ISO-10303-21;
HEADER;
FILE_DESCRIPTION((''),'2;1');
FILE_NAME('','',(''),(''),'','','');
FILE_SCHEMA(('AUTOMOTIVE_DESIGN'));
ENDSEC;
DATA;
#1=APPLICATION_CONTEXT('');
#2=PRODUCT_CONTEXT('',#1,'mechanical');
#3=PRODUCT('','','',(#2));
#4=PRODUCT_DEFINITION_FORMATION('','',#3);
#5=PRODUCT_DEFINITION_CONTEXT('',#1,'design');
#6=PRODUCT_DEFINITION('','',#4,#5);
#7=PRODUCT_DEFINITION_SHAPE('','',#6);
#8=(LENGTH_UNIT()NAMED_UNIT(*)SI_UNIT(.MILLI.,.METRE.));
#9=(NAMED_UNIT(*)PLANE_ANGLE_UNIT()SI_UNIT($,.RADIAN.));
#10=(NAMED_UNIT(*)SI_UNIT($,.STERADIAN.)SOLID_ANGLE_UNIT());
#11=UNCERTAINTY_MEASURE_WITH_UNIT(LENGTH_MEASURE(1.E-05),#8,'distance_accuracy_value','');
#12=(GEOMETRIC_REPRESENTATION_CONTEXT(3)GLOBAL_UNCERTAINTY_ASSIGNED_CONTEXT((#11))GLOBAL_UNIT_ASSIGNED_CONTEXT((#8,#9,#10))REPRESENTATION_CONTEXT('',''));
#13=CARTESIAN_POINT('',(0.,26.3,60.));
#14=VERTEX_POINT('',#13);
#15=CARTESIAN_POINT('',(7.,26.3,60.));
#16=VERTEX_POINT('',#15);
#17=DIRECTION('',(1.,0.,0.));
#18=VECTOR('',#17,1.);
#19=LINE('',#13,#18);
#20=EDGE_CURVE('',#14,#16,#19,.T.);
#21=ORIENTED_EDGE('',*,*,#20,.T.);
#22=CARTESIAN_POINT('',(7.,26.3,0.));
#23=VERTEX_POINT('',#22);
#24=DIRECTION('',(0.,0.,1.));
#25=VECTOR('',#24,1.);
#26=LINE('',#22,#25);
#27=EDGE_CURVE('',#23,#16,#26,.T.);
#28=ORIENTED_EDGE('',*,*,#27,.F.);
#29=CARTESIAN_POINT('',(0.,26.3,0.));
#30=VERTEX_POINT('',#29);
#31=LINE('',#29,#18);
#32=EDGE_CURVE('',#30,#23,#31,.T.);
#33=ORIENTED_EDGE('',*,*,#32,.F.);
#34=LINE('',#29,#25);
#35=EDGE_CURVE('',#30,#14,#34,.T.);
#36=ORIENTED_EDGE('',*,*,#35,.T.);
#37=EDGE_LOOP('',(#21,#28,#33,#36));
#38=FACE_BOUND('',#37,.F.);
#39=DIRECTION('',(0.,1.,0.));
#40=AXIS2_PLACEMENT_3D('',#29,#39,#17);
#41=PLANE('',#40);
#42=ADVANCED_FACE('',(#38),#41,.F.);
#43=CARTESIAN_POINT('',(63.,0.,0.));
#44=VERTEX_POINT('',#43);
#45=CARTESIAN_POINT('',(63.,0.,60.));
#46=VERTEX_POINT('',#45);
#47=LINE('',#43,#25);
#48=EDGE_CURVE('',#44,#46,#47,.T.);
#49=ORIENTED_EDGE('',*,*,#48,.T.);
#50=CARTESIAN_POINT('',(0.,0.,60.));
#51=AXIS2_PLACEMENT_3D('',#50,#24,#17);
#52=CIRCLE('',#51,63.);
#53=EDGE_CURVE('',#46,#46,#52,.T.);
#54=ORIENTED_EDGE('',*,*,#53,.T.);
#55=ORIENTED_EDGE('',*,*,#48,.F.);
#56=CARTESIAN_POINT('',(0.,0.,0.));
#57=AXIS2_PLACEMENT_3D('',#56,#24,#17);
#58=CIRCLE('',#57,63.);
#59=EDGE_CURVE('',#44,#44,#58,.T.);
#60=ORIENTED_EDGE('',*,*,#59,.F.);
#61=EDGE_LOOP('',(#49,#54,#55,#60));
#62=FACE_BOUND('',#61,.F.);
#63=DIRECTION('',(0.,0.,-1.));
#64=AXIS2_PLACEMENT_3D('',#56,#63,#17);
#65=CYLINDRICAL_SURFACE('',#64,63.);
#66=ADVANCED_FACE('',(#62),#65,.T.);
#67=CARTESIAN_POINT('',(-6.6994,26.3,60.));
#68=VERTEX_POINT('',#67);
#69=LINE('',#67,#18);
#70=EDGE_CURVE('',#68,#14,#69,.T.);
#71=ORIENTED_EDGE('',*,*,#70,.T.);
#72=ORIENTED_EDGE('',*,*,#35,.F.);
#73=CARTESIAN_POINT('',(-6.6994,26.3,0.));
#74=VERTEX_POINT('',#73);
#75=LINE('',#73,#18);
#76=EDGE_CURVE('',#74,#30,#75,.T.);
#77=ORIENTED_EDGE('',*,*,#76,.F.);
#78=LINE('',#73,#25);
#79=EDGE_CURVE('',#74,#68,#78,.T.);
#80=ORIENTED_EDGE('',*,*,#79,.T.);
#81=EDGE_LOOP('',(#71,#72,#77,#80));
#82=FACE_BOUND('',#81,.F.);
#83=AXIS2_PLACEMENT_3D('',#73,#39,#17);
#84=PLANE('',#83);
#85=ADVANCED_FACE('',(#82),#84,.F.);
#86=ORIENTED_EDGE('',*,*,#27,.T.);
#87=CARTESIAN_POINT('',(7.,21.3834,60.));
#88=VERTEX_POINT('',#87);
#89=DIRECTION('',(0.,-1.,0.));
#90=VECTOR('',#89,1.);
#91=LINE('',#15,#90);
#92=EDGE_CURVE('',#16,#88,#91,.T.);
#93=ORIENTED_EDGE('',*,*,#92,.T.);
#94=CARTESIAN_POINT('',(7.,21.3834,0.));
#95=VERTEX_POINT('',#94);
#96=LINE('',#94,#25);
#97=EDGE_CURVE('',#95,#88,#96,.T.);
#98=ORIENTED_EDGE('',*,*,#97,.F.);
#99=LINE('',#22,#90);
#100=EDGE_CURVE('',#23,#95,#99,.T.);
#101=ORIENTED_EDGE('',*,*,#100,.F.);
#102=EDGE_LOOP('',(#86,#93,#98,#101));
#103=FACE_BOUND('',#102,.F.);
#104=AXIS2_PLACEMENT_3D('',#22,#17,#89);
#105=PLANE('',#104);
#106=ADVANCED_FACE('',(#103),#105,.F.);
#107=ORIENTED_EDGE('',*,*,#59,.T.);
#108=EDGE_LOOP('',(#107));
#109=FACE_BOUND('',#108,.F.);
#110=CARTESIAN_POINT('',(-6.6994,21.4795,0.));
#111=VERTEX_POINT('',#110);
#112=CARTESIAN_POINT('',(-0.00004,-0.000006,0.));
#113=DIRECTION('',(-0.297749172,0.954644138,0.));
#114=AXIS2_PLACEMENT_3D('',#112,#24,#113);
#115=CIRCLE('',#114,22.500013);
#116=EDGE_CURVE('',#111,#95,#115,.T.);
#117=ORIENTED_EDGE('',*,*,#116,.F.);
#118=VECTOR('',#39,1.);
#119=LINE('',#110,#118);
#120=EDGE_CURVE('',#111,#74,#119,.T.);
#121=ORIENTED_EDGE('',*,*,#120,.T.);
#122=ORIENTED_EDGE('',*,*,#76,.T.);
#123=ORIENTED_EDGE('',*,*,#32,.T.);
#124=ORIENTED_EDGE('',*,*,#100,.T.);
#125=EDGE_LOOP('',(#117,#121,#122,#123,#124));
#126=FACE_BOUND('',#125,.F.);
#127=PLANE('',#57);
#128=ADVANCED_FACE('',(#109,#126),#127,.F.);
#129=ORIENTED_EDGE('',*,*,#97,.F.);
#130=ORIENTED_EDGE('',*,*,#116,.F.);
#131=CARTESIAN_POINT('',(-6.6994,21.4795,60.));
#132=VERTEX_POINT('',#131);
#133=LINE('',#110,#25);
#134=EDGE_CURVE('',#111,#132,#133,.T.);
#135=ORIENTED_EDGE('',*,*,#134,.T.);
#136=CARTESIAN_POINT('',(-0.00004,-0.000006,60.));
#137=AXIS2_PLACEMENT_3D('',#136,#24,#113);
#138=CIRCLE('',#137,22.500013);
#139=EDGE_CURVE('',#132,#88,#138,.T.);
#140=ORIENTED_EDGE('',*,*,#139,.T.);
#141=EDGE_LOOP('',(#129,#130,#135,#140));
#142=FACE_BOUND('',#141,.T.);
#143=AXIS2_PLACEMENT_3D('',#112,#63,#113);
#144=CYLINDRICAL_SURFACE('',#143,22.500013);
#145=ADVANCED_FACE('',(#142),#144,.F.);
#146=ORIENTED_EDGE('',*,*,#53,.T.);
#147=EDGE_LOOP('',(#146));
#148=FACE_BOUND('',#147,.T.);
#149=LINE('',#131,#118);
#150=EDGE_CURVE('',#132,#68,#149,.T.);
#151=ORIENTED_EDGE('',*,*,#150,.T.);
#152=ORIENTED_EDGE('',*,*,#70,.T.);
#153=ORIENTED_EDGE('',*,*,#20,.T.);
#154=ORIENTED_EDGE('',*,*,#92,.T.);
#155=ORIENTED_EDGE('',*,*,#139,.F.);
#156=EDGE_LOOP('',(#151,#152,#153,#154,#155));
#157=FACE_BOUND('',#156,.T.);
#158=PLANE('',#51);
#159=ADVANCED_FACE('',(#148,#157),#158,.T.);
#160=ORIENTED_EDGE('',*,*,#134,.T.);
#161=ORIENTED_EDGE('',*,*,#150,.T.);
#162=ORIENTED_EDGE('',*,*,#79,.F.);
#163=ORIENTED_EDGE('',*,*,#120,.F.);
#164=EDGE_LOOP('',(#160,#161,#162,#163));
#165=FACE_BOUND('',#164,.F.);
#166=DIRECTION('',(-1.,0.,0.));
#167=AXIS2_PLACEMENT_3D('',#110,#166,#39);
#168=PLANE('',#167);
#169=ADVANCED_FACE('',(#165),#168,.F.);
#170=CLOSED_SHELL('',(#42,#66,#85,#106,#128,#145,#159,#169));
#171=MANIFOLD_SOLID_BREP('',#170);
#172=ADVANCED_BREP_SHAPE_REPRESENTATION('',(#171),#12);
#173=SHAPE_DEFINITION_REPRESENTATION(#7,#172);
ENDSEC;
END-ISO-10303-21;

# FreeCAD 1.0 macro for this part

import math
import FreeCAD as App
import Part
import Sketcher
Q = App.Units.Quantity

doc = App.newDocument("Part")
body = doc.addObject("PartDesign::Body", "Body")

sketch1 = body.newObject("Sketcher::SketchObject", "Sketch")
sketch1.AttachmentSupport = (doc.getObject("XY_Plane"), [""])
sketch1.MapMode = "FlatFace"
sketch1.addGeometry(Part.Circle(App.Vector(0, 0, 0), App.Vector(0, 0, 1), 63), False)
sketch1.addGeometry(Part.ArcOfCircle(Part.Circle(App.Vector(0, 0, 0), App.Vector(0, 0, 1), 22.50002), math.radians(107.322564), math.radians(431.873792)), False)
sketch1.addGeometry(Part.LineSegment(App.Vector(-6.6994, 21.4795, 0), App.Vector(-6.6994, 26.3, 0)), False)
sketch1.addGeometry(Part.LineSegment(App.Vector(-6.6994, 26.3, 0), App.Vector(7, 26.3, 0)), False)
sketch1.addGeometry(Part.LineSegment(App.Vector(7, 26.3, 0), App.Vector(7, 21.3834, 0)), False)
sketch1.addConstraint(Sketcher.Constraint("Coincident", 1, 1, 2, 1))
sketch1.addConstraint(Sketcher.Constraint("Coincident", 2, 2, 3, 1))
sketch1.addConstraint(Sketcher.Constraint("Coincident", 3, 2, 4, 1))
sketch1.addConstraint(Sketcher.Constraint("Coincident", 4, 2, 1, 2))
sketch1.addConstraint(Sketcher.Constraint("Vertical", 2))
sketch1.addConstraint(Sketcher.Constraint("Horizontal", 3))
sketch1.addConstraint(Sketcher.Constraint("Vertical", 4))
sketch1.addConstraint(Sketcher.Constraint("Coincident", 0, 3, -1, 1))
sketch1.addConstraint(Sketcher.Constraint("Coincident", 1, 3, -1, 1))
sketch1.addConstraint(Sketcher.Constraint("Diameter", 0, Q("126 mm")))
sketch1.addConstraint(Sketcher.Constraint("Radius", 1, Q("22.5 mm")))
sketch1.addConstraint(Sketcher.Constraint("DistanceX", -1, 1, 3, 2, Q("7 mm")))
sketch1.addConstraint(Sketcher.Constraint("DistanceY", -1, 1, 2, 2, Q("26.3 mm")))
sketch1.addConstraint(Sketcher.Constraint("DistanceX", 3, 1, 3, 2, Q("13.6994 mm")))
pad1 = body.newObject("PartDesign::Pad", "Pad")
pad1.Profile = sketch1
pad1.Length = 60

doc.recompute()
